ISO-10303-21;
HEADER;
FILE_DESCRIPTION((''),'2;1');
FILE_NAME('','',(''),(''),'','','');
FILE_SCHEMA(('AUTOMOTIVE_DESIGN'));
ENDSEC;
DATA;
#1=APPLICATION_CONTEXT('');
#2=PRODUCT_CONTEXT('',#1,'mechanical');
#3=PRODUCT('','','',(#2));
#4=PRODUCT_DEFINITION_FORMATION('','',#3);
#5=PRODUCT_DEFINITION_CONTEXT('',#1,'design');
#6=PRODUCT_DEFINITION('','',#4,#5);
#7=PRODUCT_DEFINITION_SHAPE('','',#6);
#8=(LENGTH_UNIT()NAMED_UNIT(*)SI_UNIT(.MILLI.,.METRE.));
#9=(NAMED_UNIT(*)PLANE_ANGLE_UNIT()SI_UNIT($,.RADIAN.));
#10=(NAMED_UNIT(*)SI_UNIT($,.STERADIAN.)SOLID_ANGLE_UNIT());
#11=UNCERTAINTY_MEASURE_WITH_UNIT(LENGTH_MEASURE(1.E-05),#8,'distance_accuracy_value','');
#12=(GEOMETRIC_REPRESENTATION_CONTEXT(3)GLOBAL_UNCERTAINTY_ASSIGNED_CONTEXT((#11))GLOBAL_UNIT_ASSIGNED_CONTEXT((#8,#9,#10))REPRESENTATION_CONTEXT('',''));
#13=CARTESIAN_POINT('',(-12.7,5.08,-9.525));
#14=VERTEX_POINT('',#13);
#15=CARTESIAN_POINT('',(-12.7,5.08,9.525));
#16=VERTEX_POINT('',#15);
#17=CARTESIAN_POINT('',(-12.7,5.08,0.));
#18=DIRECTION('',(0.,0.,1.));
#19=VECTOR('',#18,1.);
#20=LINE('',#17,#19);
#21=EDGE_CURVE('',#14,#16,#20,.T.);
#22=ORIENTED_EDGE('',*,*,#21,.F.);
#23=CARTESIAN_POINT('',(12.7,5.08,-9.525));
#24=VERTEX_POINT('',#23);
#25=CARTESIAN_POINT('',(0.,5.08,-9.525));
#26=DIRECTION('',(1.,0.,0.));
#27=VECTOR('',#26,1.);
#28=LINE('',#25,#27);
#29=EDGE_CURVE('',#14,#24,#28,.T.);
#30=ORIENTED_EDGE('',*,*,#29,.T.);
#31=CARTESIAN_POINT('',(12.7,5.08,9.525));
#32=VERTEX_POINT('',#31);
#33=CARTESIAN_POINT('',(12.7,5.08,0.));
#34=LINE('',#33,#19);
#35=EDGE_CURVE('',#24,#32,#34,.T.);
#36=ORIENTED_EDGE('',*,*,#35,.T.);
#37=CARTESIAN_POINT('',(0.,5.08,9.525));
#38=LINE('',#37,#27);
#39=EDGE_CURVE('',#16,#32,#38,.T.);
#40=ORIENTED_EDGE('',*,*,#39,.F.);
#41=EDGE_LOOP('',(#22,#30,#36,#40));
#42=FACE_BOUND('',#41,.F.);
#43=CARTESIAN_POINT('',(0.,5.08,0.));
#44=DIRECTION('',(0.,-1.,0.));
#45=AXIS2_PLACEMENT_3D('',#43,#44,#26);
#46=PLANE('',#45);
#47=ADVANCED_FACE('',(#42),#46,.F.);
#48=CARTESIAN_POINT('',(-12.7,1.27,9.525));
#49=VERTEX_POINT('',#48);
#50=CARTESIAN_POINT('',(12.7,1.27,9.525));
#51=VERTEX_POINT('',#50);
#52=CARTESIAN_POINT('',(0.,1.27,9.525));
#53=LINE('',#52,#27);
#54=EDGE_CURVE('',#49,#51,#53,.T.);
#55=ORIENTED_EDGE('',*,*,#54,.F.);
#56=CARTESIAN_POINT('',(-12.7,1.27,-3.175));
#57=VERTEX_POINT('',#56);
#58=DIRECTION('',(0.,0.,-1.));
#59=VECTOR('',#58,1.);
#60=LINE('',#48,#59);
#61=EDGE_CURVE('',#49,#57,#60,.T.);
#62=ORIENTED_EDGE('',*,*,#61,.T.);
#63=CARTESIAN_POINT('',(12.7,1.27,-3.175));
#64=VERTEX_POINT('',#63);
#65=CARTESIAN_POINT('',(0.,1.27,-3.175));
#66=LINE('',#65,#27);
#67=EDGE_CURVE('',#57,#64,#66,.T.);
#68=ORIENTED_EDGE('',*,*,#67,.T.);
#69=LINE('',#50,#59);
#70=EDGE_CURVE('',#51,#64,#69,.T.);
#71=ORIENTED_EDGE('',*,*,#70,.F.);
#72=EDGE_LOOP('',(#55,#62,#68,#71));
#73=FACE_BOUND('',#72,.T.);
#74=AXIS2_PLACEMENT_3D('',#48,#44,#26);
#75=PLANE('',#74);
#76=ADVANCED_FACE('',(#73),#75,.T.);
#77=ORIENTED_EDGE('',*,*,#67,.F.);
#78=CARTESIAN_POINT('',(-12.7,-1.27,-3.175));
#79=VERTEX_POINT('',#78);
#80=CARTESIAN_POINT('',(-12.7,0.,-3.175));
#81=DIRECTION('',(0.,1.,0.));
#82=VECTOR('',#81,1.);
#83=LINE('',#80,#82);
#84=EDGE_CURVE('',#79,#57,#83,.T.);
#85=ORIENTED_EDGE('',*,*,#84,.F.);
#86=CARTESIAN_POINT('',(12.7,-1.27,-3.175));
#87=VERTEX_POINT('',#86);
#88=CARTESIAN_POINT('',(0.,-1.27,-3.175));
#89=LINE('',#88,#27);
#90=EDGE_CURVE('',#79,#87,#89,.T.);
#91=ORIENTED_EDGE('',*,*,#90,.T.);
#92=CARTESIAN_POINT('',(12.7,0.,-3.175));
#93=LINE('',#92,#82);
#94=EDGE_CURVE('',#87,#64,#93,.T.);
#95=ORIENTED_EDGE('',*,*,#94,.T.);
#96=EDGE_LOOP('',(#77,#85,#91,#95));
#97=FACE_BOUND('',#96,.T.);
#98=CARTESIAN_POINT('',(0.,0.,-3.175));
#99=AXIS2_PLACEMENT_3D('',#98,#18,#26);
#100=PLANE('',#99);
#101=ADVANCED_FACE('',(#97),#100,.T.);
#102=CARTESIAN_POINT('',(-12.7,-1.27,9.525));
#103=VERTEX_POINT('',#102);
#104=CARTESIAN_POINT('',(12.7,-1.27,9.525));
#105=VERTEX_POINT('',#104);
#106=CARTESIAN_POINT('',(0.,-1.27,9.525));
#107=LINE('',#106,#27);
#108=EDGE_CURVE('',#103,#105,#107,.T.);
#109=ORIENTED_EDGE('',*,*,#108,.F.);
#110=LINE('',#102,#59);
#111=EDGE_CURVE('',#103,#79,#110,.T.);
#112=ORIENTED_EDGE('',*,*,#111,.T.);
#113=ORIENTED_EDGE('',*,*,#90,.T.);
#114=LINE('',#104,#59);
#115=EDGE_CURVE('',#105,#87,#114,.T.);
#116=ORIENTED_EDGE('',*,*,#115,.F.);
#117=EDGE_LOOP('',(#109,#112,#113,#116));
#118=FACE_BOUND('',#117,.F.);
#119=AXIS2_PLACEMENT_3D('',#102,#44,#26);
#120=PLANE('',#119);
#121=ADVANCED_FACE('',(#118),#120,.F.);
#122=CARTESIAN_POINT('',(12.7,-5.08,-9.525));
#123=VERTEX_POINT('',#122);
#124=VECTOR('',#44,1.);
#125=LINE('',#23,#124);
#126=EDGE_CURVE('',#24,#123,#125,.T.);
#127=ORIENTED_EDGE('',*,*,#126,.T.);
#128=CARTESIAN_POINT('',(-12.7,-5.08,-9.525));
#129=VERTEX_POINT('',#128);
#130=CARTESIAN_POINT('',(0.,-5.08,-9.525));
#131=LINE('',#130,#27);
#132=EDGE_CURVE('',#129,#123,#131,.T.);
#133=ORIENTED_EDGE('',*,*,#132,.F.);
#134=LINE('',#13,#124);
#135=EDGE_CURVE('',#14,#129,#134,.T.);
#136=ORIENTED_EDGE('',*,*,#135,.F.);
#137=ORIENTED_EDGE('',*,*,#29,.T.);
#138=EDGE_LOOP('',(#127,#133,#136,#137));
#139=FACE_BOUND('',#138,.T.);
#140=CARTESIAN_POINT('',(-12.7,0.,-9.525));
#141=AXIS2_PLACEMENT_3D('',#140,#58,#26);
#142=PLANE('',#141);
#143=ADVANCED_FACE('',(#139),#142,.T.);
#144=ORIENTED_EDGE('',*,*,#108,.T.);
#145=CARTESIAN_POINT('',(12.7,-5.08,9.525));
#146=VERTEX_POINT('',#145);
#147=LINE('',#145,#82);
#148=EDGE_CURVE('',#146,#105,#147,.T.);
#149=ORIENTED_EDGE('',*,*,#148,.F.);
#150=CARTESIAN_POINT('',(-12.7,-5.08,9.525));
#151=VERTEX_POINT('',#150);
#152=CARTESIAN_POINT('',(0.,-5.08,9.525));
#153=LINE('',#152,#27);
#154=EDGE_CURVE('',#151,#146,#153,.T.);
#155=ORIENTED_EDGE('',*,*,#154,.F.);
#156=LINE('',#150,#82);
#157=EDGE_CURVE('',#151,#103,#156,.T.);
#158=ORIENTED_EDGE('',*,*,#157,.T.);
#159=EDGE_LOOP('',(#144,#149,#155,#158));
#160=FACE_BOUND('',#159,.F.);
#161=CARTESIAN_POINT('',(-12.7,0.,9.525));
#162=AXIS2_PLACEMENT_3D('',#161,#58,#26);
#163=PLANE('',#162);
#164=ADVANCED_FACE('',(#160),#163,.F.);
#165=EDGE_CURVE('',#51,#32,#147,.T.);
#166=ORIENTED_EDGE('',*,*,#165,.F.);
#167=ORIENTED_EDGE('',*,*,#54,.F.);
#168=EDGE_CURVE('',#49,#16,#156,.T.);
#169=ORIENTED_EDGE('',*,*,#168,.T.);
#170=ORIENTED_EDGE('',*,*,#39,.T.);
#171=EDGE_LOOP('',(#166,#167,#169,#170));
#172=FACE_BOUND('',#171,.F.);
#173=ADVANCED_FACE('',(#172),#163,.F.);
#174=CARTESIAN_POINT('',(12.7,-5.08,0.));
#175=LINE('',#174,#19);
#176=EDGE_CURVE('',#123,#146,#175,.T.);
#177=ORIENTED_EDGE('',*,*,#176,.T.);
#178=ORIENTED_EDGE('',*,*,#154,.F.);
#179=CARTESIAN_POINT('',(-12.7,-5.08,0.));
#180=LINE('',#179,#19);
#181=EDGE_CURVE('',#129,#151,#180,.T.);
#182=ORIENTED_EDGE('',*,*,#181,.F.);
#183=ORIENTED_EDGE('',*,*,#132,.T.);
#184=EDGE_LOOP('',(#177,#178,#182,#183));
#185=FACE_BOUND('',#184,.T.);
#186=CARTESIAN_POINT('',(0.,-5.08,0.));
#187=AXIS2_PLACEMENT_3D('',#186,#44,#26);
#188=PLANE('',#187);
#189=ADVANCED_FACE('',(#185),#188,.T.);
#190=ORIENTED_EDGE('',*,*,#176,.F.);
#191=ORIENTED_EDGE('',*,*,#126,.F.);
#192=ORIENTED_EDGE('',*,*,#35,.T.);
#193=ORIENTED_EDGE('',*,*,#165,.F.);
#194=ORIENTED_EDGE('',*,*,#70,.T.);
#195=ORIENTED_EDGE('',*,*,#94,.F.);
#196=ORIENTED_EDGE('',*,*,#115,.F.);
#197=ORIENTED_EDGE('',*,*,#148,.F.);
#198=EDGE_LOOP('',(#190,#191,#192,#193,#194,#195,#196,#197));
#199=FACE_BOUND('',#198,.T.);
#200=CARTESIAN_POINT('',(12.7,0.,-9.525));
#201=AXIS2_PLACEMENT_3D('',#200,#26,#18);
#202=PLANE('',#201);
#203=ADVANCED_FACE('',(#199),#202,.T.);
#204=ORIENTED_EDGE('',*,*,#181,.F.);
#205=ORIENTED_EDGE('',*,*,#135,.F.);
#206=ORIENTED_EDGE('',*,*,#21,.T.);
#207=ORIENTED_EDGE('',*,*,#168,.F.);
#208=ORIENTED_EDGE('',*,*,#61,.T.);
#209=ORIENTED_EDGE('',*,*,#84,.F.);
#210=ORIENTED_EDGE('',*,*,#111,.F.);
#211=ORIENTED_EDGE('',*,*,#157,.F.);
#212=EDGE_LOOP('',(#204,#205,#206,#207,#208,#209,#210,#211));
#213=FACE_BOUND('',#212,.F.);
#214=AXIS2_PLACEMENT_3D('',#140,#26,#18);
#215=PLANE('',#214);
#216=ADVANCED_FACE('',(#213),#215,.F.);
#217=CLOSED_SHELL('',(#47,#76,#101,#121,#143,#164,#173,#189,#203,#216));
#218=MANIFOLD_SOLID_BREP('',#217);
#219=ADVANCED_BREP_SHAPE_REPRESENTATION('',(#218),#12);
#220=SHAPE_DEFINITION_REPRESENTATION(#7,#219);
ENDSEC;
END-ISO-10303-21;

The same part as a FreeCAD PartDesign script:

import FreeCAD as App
import Part
import Sketcher
from FreeCAD import Vector
Q = App.Units.Quantity


def add_polygon(sketch, points):
    """Adds a closed chain of lines whose ends are joined by coincident constraints."""
    first, n = sketch.GeometryCount, len(points)
    for a, b in zip(points, points[1:] + points[:1]):
        sketch.addGeometry(Part.LineSegment(App.Vector(*a, 0), App.Vector(*b, 0)), False)
    for i in range(n):
        sketch.addConstraint(Sketcher.Constraint("Coincident", first + i, 2, first + (i + 1) % n, 1))

doc = App.newDocument("Part")
body = doc.addObject("PartDesign::Body", "Body")

sketch1 = body.newObject("Sketcher::SketchObject", "Sketch")
sketch1.AttachmentSupport = (doc.getObject("XZ_Plane"), [""])
sketch1.MapMode = "FlatFace"
add_polygon(sketch1, [(-13, 10), (-13, -10), (13, -10), (13, 10)])
sketch1.addConstraint([
    Sketcher.Constraint("Vertical", 0),
    Sketcher.Constraint("Horizontal", 1),
    Sketcher.Constraint("Vertical", 2),
    Sketcher.Constraint("Horizontal", 3),
    Sketcher.Constraint("Symmetric", 0, 2, 2, 2, -1, 1),
    Sketcher.Constraint("DistanceX", 1, 1, 1, 2, Q("1 in")),
    Sketcher.Constraint("DistanceY", 0, 2, 0, 1, Q("0.75 in")),
])
pad1 = body.newObject("PartDesign::Pad", "Pad")
pad1.Profile = sketch1
pad1.Length = Q("0.4 in")
pad1.Midplane = True

sketch2 = body.newObject("Sketcher::SketchObject", "Sketch001")
sketch2.AttachmentSupport = (doc.getObject("XY_Plane"), [""])
sketch2.MapMode = "FlatFace"
sketch2.AttachmentOffset = App.Placement(Vector(0, 0, 0.375 * 25.4), App.Rotation())
add_polygon(sketch2, [(-12.7, 1.3), (-12.7, -1.3), (12.7, -1.3), (12.7, 1.3)])
sketch2.addConstraint([
    Sketcher.Constraint("Vertical", 0),
    Sketcher.Constraint("Horizontal", 1),
    Sketcher.Constraint("Vertical", 2),
    Sketcher.Constraint("Horizontal", 3),
    Sketcher.Constraint("Symmetric", 0, 2, 2, 2, -1, 1),
    Sketcher.Constraint("DistanceX", 1, 1, 1, 2, Q("1 in")),
    Sketcher.Constraint("DistanceY", 0, 2, 0, 1, Q("0.1 in")),
])
pocket1 = body.newObject("PartDesign::Pocket", "Pocket")
pocket1.Profile = sketch2
pocket1.Length = Q("0.5 in")

doc.recompute()
